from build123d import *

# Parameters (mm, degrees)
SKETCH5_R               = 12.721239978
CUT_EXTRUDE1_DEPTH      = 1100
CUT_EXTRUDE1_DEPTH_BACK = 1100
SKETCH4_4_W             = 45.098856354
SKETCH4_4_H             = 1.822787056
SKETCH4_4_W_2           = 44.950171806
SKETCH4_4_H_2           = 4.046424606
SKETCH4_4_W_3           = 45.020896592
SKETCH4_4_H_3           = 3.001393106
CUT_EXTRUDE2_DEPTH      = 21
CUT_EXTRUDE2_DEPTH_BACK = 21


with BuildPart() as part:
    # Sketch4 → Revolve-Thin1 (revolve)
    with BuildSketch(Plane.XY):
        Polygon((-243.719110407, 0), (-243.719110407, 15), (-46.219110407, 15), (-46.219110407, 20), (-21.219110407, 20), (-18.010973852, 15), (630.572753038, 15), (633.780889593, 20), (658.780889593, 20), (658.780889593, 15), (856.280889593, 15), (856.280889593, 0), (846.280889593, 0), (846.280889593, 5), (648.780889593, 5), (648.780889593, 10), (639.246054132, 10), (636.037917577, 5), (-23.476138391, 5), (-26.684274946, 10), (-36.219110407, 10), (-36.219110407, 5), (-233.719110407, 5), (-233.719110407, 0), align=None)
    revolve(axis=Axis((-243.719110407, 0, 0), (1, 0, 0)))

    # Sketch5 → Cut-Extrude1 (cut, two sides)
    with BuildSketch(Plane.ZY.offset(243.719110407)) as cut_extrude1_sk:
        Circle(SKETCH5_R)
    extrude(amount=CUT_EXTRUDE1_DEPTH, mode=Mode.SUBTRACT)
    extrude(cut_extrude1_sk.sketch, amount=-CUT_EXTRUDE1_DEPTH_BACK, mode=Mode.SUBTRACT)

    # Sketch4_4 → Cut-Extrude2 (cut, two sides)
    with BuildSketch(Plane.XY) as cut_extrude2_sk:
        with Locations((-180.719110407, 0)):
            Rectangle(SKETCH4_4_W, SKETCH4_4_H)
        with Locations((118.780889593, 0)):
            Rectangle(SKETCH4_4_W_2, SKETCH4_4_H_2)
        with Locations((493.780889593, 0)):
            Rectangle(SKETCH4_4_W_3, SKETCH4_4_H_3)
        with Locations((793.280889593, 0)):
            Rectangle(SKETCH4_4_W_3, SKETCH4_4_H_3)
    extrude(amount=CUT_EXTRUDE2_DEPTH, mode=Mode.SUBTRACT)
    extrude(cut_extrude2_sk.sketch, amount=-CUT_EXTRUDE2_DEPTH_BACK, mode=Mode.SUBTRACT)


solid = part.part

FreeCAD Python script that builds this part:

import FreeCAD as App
import Part
import Sketcher
from FreeCAD import Vector


def add_polygon(sketch, points):
    """Adds a closed chain of lines whose ends are joined by coincident constraints."""
    first, n = sketch.GeometryCount, len(points)
    for a, b in zip(points, points[1:] + points[:1]):
        sketch.addGeometry(Part.LineSegment(App.Vector(*a, 0), App.Vector(*b, 0)), False)
    for i in range(n):
        sketch.addConstraint(Sketcher.Constraint("Coincident", first + i, 2, first + (i + 1) % n, 1))

doc = App.newDocument("Part")
params = doc.addObject("Spreadsheet::Sheet", "Params")
for row, (alias, value) in enumerate([
    ("sketch1_width", "10 mm"),
    ("sketch1_width2", "25 mm"),
    ("sketch1_height", "15 mm"),
    ("sketch1_height2", "5 mm"),
    ("sketch1_width3", "197.5 mm"),
    ("revolution_angle", "360 deg"),
], start=1):
    params.set(f"A{row}", alias)
    params.set(f"B{row}", "=" + value)
    params.setAlias(f"B{row}", alias)

body = doc.addObject("PartDesign::Body", "Body")

sketch1 = body.newObject("Sketcher::SketchObject", "Sketch")
sketch1.AttachmentSupport = (doc.getObject("XY_Plane"), [""])
sketch1.MapMode = "FlatFace"
add_polygon(sketch1, [(-243.71911, 15), (-243.71911, 0), (-233.71911, 0), (-233.71911, 5), (-36.21911, 5), (-36.21911, 10), (-26.684275, 10), (-23.476138, 5), (636.037918, 5), (639.246054, 10), (648.78089, 10), (648.78089, 5), (846.28089, 5), (846.28089, 0), (856.28089, 0), (856.28089, 15), (658.78089, 15), (658.78089, 20), (633.78089, 20), (630.572753, 15), (-18.010974, 15), (-21.21911, 20), (-46.21911, 20), (-46.21911, 15)])
sketch1.addConstraint(Sketcher.Constraint("Vertical", 0))
sketch1.addConstraint(Sketcher.Constraint("Horizontal", 1))
sketch1.addConstraint(Sketcher.Constraint("Vertical", 2))
sketch1.addConstraint(Sketcher.Constraint("Horizontal", 3))
sketch1.addConstraint(Sketcher.Constraint("Vertical", 4))
sketch1.addConstraint(Sketcher.Constraint("Horizontal", 5))
sketch1.addConstraint(Sketcher.Constraint("Horizontal", 7))
sketch1.addConstraint(Sketcher.Constraint("Horizontal", 9))
sketch1.addConstraint(Sketcher.Constraint("Vertical", 10))
sketch1.addConstraint(Sketcher.Constraint("Horizontal", 11))
sketch1.addConstraint(Sketcher.Constraint("Vertical", 12))
sketch1.addConstraint(Sketcher.Constraint("Horizontal", 13))
sketch1.addConstraint(Sketcher.Constraint("Vertical", 14))
sketch1.addConstraint(Sketcher.Constraint("Horizontal", 15))
sketch1.addConstraint(Sketcher.Constraint("Vertical", 16))
sketch1.addConstraint(Sketcher.Constraint("Horizontal", 17))
sketch1.addConstraint(Sketcher.Constraint("Horizontal", 19))
sketch1.addConstraint(Sketcher.Constraint("Horizontal", 21))
sketch1.addConstraint(Sketcher.Constraint("Vertical", 22))
sketch1.addConstraint(Sketcher.Constraint("Horizontal", 23))
sketch1.addConstraint(Sketcher.Constraint("PointOnObject", 0, 2, -1))
sketch1.addConstraint(Sketcher.Constraint("PointOnObject", 12, 2, -1))
sketch1.addConstraint(Sketcher.Constraint("Parallel", 8, 18))
sketch1.addConstraint(Sketcher.Constraint("Parallel", 6, 20))
sketch1.addConstraint(Sketcher.Constraint("Horizontal", 3, 2, 6, 2))
sketch1.addConstraint(Sketcher.Constraint("Horizontal", 5, 2, 8, 2))
sketch1.addConstraint(Sketcher.Constraint("Horizontal", 7, 2, 10, 2))
sketch1.addConstraint(Sketcher.Constraint("Horizontal", 15, 2, 18, 2))
sketch1.addConstraint(Sketcher.Constraint("Horizontal", 17, 2, 20, 2))
sketch1.addConstraint(Sketcher.Constraint("Horizontal", 19, 2, 22, 2))
sketch1.addConstraint(Sketcher.Constraint("Equal", 5, 9))
sketch1.addConstraint(Sketcher.Constraint("Equal", 3, 11))
sketch1.addConstraint(Sketcher.Constraint("Equal", 1, 13))
sketch1.addConstraint(Sketcher.Constraint("Equal", 11, 15))
sketch1.addConstraint(Sketcher.Constraint("Equal", 17, 21))
sketch1.addConstraint(Sketcher.Constraint("Equal", 15, 23))
sketch1.addConstraint(Sketcher.Constraint("Equal", 2, 4))
sketch1.addConstraint(Sketcher.Constraint("Equal", 12, 16))
sketch1.addConstraint(Sketcher.Constraint("Equal", 6, 8))
sketch1.addConstraint(Sketcher.Constraint("DistanceX", 1, 1, 1, 2, 10.0))
sketch1.addConstraint(Sketcher.Constraint("DistanceX", 17, 2, 17, 1, 25.0))
sketch1.addConstraint(Sketcher.Constraint("DistanceY", 0, 2, 0, 1, 15.0))
sketch1.addConstraint(Sketcher.Constraint("DistanceY", 2, 1, 2, 2, 5.0))
sketch1.addConstraint(Sketcher.Constraint("DistanceX", 3, 1, 3, 2, 197.5))
sketch1.addConstraint(Sketcher.Constraint("DistanceX", 4, 2, 9, 2, 685.0))
sketch1.addConstraint(Sketcher.Constraint("DistanceX", 18, 2, 8, 2, 8.673301))
sketch1.addConstraint(Sketcher.Constraint("Distance", 6, 5.940719))
sketch1.addConstraint(Sketcher.Constraint("DistanceX", 0, 2, -1, 1, 243.71911))
sketch1.setExpression("Constraints[63]", "Params.sketch1_width")
sketch1.setExpression("Constraints[64]", "Params.sketch1_width2")
sketch1.setExpression("Constraints[65]", "Params.sketch1_height")
sketch1.setExpression("Constraints[66]", "Params.sketch1_height2")
sketch1.setExpression("Constraints[67]", "Params.sketch1_width3")
revolution = body.newObject("PartDesign::Revolution", "Revolution")
revolution.Profile = sketch1
revolution.ReferenceAxis = (sketch1, ["H_Axis"])
revolution.setExpression("Angle", "Params.revolution_angle")

sketch2 = body.newObject("Sketcher::SketchObject", "Sketch001")
sketch2.AttachmentSupport = (doc.getObject("YZ_Plane"), [""])
sketch2.MapMode = "FlatFace"
sketch2.AttachmentOffset = App.Placement(Vector(0, 0, -243.71911), App.Rotation())
sketch2.addGeometry(Part.Circle(Vector(0, 0, 0), Vector(0, 0, 1), 12.72124), False)
sketch2.addConstraint(Sketcher.Constraint("Coincident", 0, 3, -1, 1))
sketch2.addConstraint(Sketcher.Constraint("Diameter", 0, 25.44248))
pocket1 = body.newObject("PartDesign::Pocket", "Pocket")
pocket1.Profile = sketch2
pocket1.Type = "ThroughAll"
pocket1.Midplane = True

sketch3 = body.newObject("Sketcher::SketchObject", "Sketch002")
sketch3.AttachmentSupport = (doc.getObject("XY_Plane"), [""])
sketch3.MapMode = "FlatFace"
add_polygon(sketch3, [(-203.268539, 0.911394), (-203.268539, -0.911394), (-158.169682, -0.911394), (-158.169682, 0.911394)])
add_polygon(sketch3, [(96.305804, 2.023212), (96.305804, -2.023212), (141.255975, -2.023212), (141.255975, 2.023212)])
add_polygon(sketch3, [(471.270441, 1.500697), (471.270441, -1.500697), (516.291338, -1.500697), (516.291338, 1.500697)])
add_polygon(sketch3, [(770.770441, 1.500697), (770.770441, -1.500697), (815.791338, -1.500697), (815.791338, 1.500697)])
sketch3.addConstraint(Sketcher.Constraint("Vertical", 0))
sketch3.addConstraint(Sketcher.Constraint("Horizontal", 1))
sketch3.addConstraint(Sketcher.Constraint("Vertical", 2))
sketch3.addConstraint(Sketcher.Constraint("Horizontal", 3))
sketch3.addConstraint(Sketcher.Constraint("Vertical", 4))
sketch3.addConstraint(Sketcher.Constraint("Horizontal", 5))
sketch3.addConstraint(Sketcher.Constraint("Vertical", 6))
sketch3.addConstraint(Sketcher.Constraint("Horizontal", 7))
sketch3.addConstraint(Sketcher.Constraint("Vertical", 8))
sketch3.addConstraint(Sketcher.Constraint("Horizontal", 9))
sketch3.addConstraint(Sketcher.Constraint("Vertical", 10))
sketch3.addConstraint(Sketcher.Constraint("Horizontal", 11))
sketch3.addConstraint(Sketcher.Constraint("Vertical", 12))
sketch3.addConstraint(Sketcher.Constraint("Horizontal", 13))
sketch3.addConstraint(Sketcher.Constraint("Vertical", 14))
sketch3.addConstraint(Sketcher.Constraint("Horizontal", 15))
sketch3.addConstraint(Sketcher.Constraint("Horizontal", 9, 2, 12, 2))
sketch3.addConstraint(Sketcher.Constraint("Horizontal", 11, 2, 14, 2))
sketch3.addConstraint(Sketcher.Constraint("Equal", 11, 13))
sketch3.addConstraint(Sketcher.Constraint("DistanceX", 8, 2, 12, 2, 299.5))
sketch3.addConstraint(Sketcher.Constraint("DistanceX", 5, 1, 5, 2, 44.950172))
sketch3.addConstraint(Sketcher.Constraint("DistanceX", 1, 1, 1, 2, 45.098856))
sketch3.addConstraint(Sketcher.Constraint("DistanceX", 9, 1, 9, 2, 45.020897))
sketch3.addConstraint(Sketcher.Constraint("DistanceY", 0, 2, 0, 1, 1.822787))
sketch3.addConstraint(Sketcher.Constraint("DistanceY", 4, 2, 4, 1, 4.046425))
sketch3.addConstraint(Sketcher.Constraint("DistanceY", 8, 2, 8, 1, 3.001393))
sketch3.addConstraint(Sketcher.Constraint("DistanceX", 0, 2, -1, 1, 203.268539))
sketch3.addConstraint(Sketcher.Constraint("DistanceX", -1, 1, 8, 2, 471.270441))
sketch3.addConstraint(Sketcher.Constraint("DistanceY", 4, 2, 1, 2, 1.111819))
sketch3.addConstraint(Sketcher.Constraint("DistanceY", 8, 2, 6, 2, 3.523909))
sketch3.addConstraint(Sketcher.Constraint("DistanceY", 0, 2, -1, 1, 0.911394))
sketch3.addConstraint(Sketcher.Constraint("DistanceX", -1, 1, 4, 2, 96.305804))
pocket2 = body.newObject("PartDesign::Pocket", "Pocket001")
pocket2.Profile = sketch3
pocket2.Type = "ThroughAll"
pocket2.Midplane = True

doc.recompute()
